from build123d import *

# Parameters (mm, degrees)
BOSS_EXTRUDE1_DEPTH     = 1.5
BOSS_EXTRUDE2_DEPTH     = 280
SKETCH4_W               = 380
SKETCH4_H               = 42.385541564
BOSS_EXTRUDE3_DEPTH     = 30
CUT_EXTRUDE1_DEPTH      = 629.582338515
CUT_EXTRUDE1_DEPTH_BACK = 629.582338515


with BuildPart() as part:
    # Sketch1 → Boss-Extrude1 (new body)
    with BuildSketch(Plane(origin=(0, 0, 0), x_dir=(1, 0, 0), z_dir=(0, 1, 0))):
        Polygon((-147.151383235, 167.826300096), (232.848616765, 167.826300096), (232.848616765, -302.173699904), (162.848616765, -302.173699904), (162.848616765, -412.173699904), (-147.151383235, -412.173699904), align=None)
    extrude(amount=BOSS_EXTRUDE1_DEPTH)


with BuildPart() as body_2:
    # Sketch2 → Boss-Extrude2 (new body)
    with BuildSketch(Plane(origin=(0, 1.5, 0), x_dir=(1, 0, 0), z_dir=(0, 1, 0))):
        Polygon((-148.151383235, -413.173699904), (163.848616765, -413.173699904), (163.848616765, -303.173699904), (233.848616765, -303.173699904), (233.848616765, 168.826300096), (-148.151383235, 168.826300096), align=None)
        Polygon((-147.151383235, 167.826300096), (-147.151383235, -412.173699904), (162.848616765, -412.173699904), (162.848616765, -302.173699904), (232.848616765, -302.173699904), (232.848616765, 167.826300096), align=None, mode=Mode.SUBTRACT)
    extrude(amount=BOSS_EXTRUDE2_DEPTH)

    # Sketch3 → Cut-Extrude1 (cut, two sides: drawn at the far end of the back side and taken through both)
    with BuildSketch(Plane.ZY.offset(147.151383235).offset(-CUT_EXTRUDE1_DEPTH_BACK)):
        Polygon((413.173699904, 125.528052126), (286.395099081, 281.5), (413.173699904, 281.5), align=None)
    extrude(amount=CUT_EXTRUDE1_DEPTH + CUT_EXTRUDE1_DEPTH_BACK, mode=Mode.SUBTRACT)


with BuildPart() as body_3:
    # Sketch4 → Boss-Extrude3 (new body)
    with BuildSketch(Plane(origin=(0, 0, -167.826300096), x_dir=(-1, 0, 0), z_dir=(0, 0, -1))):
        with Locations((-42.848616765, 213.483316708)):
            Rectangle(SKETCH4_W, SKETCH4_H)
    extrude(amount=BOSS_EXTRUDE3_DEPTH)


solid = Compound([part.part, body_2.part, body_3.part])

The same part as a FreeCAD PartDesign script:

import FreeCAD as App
import Part
import Sketcher

V = App.Vector
Q = App.Units.Quantity

doc = App.newDocument("Part")
body = doc.addObject("PartDesign::Body", "Body")

# Sketch on XZ plane
sketch1 = body.newObject("Sketcher::SketchObject", "Sketch")
sketch1.AttachmentSupport = (doc.getObject("XZ_Plane"), [""])
sketch1.MapMode = "FlatFace"
sketch1.addGeometry(Part.LineSegment(V(233, -168, 0), V(-147, -168, 0)), False)
sketch1.addGeometry(Part.LineSegment(V(-147, -168, 0), V(-147, 412, 0)), False)
sketch1.addGeometry(Part.LineSegment(V(-147, 412, 0), V(163, 412, 0)), False)
sketch1.addGeometry(Part.LineSegment(V(163, 412, 0), V(163, 302, 0)), False)
sketch1.addGeometry(Part.LineSegment(V(163, 302, 0), V(233, 302, 0)), False)
sketch1.addGeometry(Part.LineSegment(V(233, 302, 0), V(233, -168, 0)), False)
sketch1.addConstraint(Sketcher.Constraint("Coincident", 0, 2, 1, 1))
sketch1.addConstraint(Sketcher.Constraint("Coincident", 1, 2, 2, 1))
sketch1.addConstraint(Sketcher.Constraint("Coincident", 2, 2, 3, 1))
sketch1.addConstraint(Sketcher.Constraint("Coincident", 3, 2, 4, 1))
sketch1.addConstraint(Sketcher.Constraint("Coincident", 4, 2, 5, 1))
sketch1.addConstraint(Sketcher.Constraint("Coincident", 5, 2, 0, 1))
sketch1.addConstraint(Sketcher.Constraint("Horizontal", 0))
sketch1.addConstraint(Sketcher.Constraint("Vertical", 1))
sketch1.addConstraint(Sketcher.Constraint("Horizontal", 2))
sketch1.addConstraint(Sketcher.Constraint("Vertical", 3))
sketch1.addConstraint(Sketcher.Constraint("Horizontal", 4))
sketch1.addConstraint(Sketcher.Constraint("Vertical", 5))
sketch1.addConstraint(Sketcher.Constraint("DistanceX", 0, 2, 0, 1, Q("380 mm")))
sketch1.addConstraint(Sketcher.Constraint("DistanceX", 2, 1, 2, 2, Q("310 mm")))
sketch1.addConstraint(Sketcher.Constraint("DistanceY", 1, 1, 1, 2, Q("580 mm")))
sketch1.addConstraint(Sketcher.Constraint("DistanceY", 3, 2, 3, 1, Q("110 mm")))
sketch1.addConstraint(Sketcher.Constraint("DistanceY", 0, 2, -1, 1, Q("167.8263 mm")))
sketch1.addConstraint(Sketcher.Constraint("DistanceX", 0, 2, -1, 1, Q("147.151383 mm")))
pad1 = body.newObject("PartDesign::Pad", "Pad")
pad1.Profile = sketch1
pad1.Length = 1.5
pad1.Reversed = True
body2 = doc.addObject("PartDesign::Body", "Body001")

# Sketch on XZ plane
sketch2 = body2.newObject("Sketcher::SketchObject", "Sketch001")
sketch2.AttachmentSupport = (doc.getObject("XZ_Plane001"), [""])
sketch2.MapMode = "FlatFace"
sketch2.AttachmentOffset = App.Placement(V(0, 0, -1.5), App.Rotation())
sketch2.addGeometry(Part.LineSegment(V(-148, 413, 0), V(164, 413, 0)), False)
sketch2.addGeometry(Part.LineSegment(V(164, 413, 0), V(164, 303, 0)), False)
sketch2.addGeometry(Part.LineSegment(V(164, 303, 0), V(234, 303, 0)), False)
sketch2.addGeometry(Part.LineSegment(V(234, 303, 0), V(234, -169, 0)), False)
sketch2.addGeometry(Part.LineSegment(V(234, -169, 0), V(-148, -169, 0)), False)
sketch2.addGeometry(Part.LineSegment(V(-148, -169, 0), V(-148, 413, 0)), False)
sketch2.addGeometry(Part.LineSegment(V(-147, 412, 0), V(-147, -168, 0)), False)
sketch2.addGeometry(Part.LineSegment(V(-147, -168, 0), V(233, -168, 0)), False)
sketch2.addGeometry(Part.LineSegment(V(233, -168, 0), V(233, 302, 0)), False)
sketch2.addGeometry(Part.LineSegment(V(233, 302, 0), V(163, 302, 0)), False)
sketch2.addGeometry(Part.LineSegment(V(163, 302, 0), V(163, 412, 0)), False)
sketch2.addGeometry(Part.LineSegment(V(163, 412, 0), V(-147, 412, 0)), False)
sketch2.addConstraint(Sketcher.Constraint("Coincident", 0, 2, 1, 1))
sketch2.addConstraint(Sketcher.Constraint("Coincident", 1, 2, 2, 1))
sketch2.addConstraint(Sketcher.Constraint("Coincident", 2, 2, 3, 1))
sketch2.addConstraint(Sketcher.Constraint("Coincident", 3, 2, 4, 1))
sketch2.addConstraint(Sketcher.Constraint("Coincident", 4, 2, 5, 1))
sketch2.addConstraint(Sketcher.Constraint("Coincident", 5, 2, 0, 1))
sketch2.addConstraint(Sketcher.Constraint("Coincident", 6, 2, 7, 1))
sketch2.addConstraint(Sketcher.Constraint("Coincident", 7, 2, 8, 1))
sketch2.addConstraint(Sketcher.Constraint("Coincident", 8, 2, 9, 1))
sketch2.addConstraint(Sketcher.Constraint("Coincident", 9, 2, 10, 1))
sketch2.addConstraint(Sketcher.Constraint("Coincident", 10, 2, 11, 1))
sketch2.addConstraint(Sketcher.Constraint("Coincident", 11, 2, 6, 1))
sketch2.addConstraint(Sketcher.Constraint("Horizontal", 0))
sketch2.addConstraint(Sketcher.Constraint("Vertical", 1))
sketch2.addConstraint(Sketcher.Constraint("Horizontal", 2))
sketch2.addConstraint(Sketcher.Constraint("Vertical", 3))
sketch2.addConstraint(Sketcher.Constraint("Horizontal", 4))
sketch2.addConstraint(Sketcher.Constraint("Vertical", 5))
sketch2.addConstraint(Sketcher.Constraint("Vertical", 6))
sketch2.addConstraint(Sketcher.Constraint("Horizontal", 7))
sketch2.addConstraint(Sketcher.Constraint("Vertical", 8))
sketch2.addConstraint(Sketcher.Constraint("Horizontal", 9))
sketch2.addConstraint(Sketcher.Constraint("Vertical", 10))
sketch2.addConstraint(Sketcher.Constraint("Horizontal", 11))
sketch2.addConstraint(Sketcher.Constraint("Equal", 2, 9))
sketch2.addConstraint(Sketcher.Constraint("Equal", 1, 10))
sketch2.addConstraint(Sketcher.Constraint("DistanceX", 0, 1, 0, 2, Q("312 mm")))
sketch2.addConstraint(Sketcher.Constraint("DistanceX", 2, 1, 2, 2, Q("70 mm")))
sketch2.addConstraint(Sketcher.Constraint("DistanceX", 7, 1, 7, 2, Q("380 mm")))
sketch2.addConstraint(Sketcher.Constraint("DistanceY", 1, 2, 1, 1, Q("110 mm")))
sketch2.addConstraint(Sketcher.Constraint("DistanceY", 3, 2, 3, 1, Q("472 mm")))
sketch2.addConstraint(Sketcher.Constraint("DistanceY", 6, 2, 6, 1, Q("580 mm")))
sketch2.addConstraint(Sketcher.Constraint("DistanceX", 4, 2, 6, 2, Q("1 mm")))
sketch2.addConstraint(Sketcher.Constraint("DistanceY", 4, 2, 6, 2, Q("1 mm")))
sketch2.addConstraint(Sketcher.Constraint("DistanceY", -1, 1, 0, 2, Q("413.1737 mm")))
sketch2.addConstraint(Sketcher.Constraint("DistanceX", -1, 1, 0, 2, Q("163.848617 mm")))
pad2 = body2.newObject("PartDesign::Pad", "Pad001")
pad2.Profile = sketch2
pad2.Length = 280
pad2.Reversed = True

# Sketch on YZ plane
sketch3 = body2.newObject("Sketcher::SketchObject", "Sketch002")
sketch3.AttachmentSupport = (doc.getObject("YZ_Plane001"), [""])
sketch3.MapMode = "FlatFace"
sketch3.AttachmentOffset = App.Placement(V(0, 0, -147.151383), App.Rotation())
sketch3.addGeometry(Part.LineSegment(V(282, 286, 0), V(126, 413, 0)), False)
sketch3.addGeometry(Part.LineSegment(V(126, 413, 0), V(282, 413, 0)), False)
sketch3.addGeometry(Part.LineSegment(V(282, 413, 0), V(282, 286, 0)), False)
sketch3.addConstraint(Sketcher.Constraint("Coincident", 0, 2, 1, 1))
sketch3.addConstraint(Sketcher.Constraint("Coincident", 1, 2, 2, 1))
sketch3.addConstraint(Sketcher.Constraint("Coincident", 2, 2, 0, 1))
sketch3.addConstraint(Sketcher.Constraint("Horizontal", 1))
sketch3.addConstraint(Sketcher.Constraint("Vertical", 2))
sketch3.addConstraint(Sketcher.Constraint("DistanceX", -1, 1, 1, 2, Q("281.5 mm")))
sketch3.addConstraint(Sketcher.Constraint("DistanceY", 2, 2, 2, 1, Q("126.778601 mm")))
sketch3.addConstraint(Sketcher.Constraint("DistanceY", -1, 1, 0, 2, Q("413.1737 mm")))
sketch3.addConstraint(Sketcher.Constraint("DistanceX", 1, 1, 1, 2, Q("155.971948 mm")))
pocket1 = body2.newObject("PartDesign::Pocket", "Pocket")
pocket1.Profile = sketch3
pocket1.Type = "ThroughAll"
pocket1.Midplane = True
body3 = doc.addObject("PartDesign::Body", "Body002")

# Sketch on XY plane
sketch4 = body3.newObject("Sketcher::SketchObject", "Sketch003")
sketch4.AttachmentSupport = (doc.getObject("XY_Plane002"), [""])
sketch4.MapMode = "FlatFace"
sketch4.AttachmentOffset = App.Placement(V(0, 0, -167.8263), App.Rotation())
sketch4.addGeometry(Part.LineSegment(V(233, 235, 0), V(233, 192, 0)), False)
sketch4.addGeometry(Part.LineSegment(V(233, 192, 0), V(-147, 192, 0)), False)
sketch4.addGeometry(Part.LineSegment(V(-147, 192, 0), V(-147, 235, 0)), False)
sketch4.addGeometry(Part.LineSegment(V(-147, 235, 0), V(233, 235, 0)), False)
sketch4.addConstraint(Sketcher.Constraint("Coincident", 0, 2, 1, 1))
sketch4.addConstraint(Sketcher.Constraint("Coincident", 1, 2, 2, 1))
sketch4.addConstraint(Sketcher.Constraint("Coincident", 2, 2, 3, 1))
sketch4.addConstraint(Sketcher.Constraint("Coincident", 3, 2, 0, 1))
sketch4.addConstraint(Sketcher.Constraint("Vertical", 0))
sketch4.addConstraint(Sketcher.Constraint("Horizontal", 1))
sketch4.addConstraint(Sketcher.Constraint("Vertical", 2))
sketch4.addConstraint(Sketcher.Constraint("Horizontal", 3))
sketch4.addConstraint(Sketcher.Constraint("DistanceX", 1, 2, 1, 1, Q("380 mm")))
sketch4.addConstraint(Sketcher.Constraint("DistanceY", 0, 2, 0, 1, Q("42.385542 mm")))
sketch4.addConstraint(Sketcher.Constraint("DistanceX", -1, 1, 0, 2, Q("232.848617 mm")))
sketch4.addConstraint(Sketcher.Constraint("DistanceY", -1, 1, 0, 2, Q("192.290546 mm")))
pad3 = body3.newObject("PartDesign::Pad", "Pad002")
pad3.Profile = sketch4
pad3.Length = 30
pad3.Reversed = True

doc.recompute()
